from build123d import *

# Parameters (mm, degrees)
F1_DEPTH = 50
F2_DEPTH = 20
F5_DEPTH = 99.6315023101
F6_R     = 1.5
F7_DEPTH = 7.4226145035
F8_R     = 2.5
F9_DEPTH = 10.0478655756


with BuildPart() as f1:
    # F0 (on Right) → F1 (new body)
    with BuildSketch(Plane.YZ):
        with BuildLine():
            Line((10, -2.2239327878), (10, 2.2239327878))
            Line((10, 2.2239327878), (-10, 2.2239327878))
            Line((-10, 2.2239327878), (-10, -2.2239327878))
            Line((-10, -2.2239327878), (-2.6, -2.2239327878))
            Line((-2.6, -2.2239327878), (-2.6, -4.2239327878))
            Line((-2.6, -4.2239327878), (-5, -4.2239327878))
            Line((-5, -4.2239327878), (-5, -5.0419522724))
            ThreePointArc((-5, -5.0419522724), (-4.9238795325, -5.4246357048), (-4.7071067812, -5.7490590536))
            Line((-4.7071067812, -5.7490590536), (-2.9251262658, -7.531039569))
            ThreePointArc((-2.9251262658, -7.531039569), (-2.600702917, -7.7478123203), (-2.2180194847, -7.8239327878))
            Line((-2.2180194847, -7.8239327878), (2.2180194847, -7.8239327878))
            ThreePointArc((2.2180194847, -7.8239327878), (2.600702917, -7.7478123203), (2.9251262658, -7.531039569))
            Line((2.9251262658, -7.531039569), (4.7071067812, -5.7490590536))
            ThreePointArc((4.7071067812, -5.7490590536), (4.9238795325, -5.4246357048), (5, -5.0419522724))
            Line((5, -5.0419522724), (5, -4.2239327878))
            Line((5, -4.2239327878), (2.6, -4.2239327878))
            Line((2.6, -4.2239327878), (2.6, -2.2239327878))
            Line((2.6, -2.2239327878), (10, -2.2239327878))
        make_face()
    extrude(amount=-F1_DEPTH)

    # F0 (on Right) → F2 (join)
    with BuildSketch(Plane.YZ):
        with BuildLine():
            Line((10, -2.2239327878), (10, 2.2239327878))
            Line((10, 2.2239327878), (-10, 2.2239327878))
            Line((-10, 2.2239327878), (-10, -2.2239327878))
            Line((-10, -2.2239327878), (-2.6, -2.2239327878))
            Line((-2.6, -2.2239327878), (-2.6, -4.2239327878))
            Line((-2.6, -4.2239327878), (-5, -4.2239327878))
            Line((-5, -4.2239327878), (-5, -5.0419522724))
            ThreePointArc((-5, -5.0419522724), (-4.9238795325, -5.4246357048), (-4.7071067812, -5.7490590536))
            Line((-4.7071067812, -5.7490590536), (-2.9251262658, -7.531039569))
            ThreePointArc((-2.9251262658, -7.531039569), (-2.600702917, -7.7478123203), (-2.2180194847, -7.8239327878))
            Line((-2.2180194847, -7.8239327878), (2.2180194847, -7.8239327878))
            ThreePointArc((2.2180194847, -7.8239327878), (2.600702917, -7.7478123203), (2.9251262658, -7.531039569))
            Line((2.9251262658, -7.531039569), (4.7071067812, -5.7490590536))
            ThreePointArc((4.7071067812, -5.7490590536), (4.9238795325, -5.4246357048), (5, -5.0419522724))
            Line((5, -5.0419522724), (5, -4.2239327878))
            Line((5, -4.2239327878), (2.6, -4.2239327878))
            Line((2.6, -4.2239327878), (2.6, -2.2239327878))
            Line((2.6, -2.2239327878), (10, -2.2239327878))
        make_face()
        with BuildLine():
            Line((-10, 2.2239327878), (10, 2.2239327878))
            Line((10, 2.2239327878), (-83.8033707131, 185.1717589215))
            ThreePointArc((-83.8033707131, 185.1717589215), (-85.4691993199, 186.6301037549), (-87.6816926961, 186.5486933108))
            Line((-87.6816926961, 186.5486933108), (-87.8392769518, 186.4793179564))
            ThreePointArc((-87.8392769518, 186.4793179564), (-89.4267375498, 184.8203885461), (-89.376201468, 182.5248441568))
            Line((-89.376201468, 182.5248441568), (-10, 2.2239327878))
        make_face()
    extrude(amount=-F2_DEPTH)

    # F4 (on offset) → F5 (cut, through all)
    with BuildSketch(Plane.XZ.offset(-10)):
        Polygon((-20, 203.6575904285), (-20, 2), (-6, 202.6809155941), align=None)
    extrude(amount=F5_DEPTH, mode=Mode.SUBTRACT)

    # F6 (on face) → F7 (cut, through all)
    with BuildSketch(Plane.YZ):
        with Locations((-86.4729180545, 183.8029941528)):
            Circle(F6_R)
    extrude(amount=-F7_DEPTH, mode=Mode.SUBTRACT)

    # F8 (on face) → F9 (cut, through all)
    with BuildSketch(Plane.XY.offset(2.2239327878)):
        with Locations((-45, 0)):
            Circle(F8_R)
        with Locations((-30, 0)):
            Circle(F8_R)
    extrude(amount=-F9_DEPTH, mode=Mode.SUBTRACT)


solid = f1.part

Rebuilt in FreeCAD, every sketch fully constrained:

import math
import FreeCAD as App
import Part
import Sketcher

V = App.Vector

doc = App.newDocument("Part")
body = doc.addObject("PartDesign::Body", "Body")

# Sketch on YZ plane
sketch1 = body.newObject("Sketcher::SketchObject", "Sketch")
sketch1.AttachmentSupport = (doc.getObject("YZ_Plane"), [""])
sketch1.MapMode = "FlatFace"
sketch1.addGeometry(Part.LineSegment(V(10, -2.223933, 0), V(10, 2.223933, 0)), False)
sketch1.addGeometry(Part.LineSegment(V(10, 2.223933, 0), V(-10, 2.223933, 0)), False)
sketch1.addGeometry(Part.LineSegment(V(-10, 2.223933, 0), V(-10, -2.223933, 0)), False)
sketch1.addGeometry(Part.LineSegment(V(-10, -2.223933, 0), V(-2.6, -2.223933, 0)), False)
sketch1.addGeometry(Part.LineSegment(V(-2.6, -2.223933, 0), V(-2.6, -4.223933, 0)), False)
sketch1.addGeometry(Part.LineSegment(V(-2.6, -4.223933, 0), V(-5, -4.223933, 0)), False)
sketch1.addGeometry(Part.LineSegment(V(-5, -4.223933, 0), V(-5, -5.041952, 0)), False)
sketch1.addGeometry(Part.ArcOfCircle(Part.Circle(V(-4, -5.041952, 0), V(0, 0, 1), 1), math.radians(180), math.radians(225)), False)
sketch1.addGeometry(Part.LineSegment(V(-4.707107, -5.749059, 0), V(-2.925126, -7.53104, 0)), False)
sketch1.addGeometry(Part.ArcOfCircle(Part.Circle(V(-2.218019, -6.823933, 0), V(0, 0, 1), 1), math.radians(-135), math.radians(-90)), False)
sketch1.addGeometry(Part.LineSegment(V(-2.218019, -7.823933, 0), V(2.218019, -7.823933, 0)), False)
sketch1.addGeometry(Part.ArcOfCircle(Part.Circle(V(2.218019, -6.823933, 0), V(0, 0, 1), 1), math.radians(-90), math.radians(-45)), False)
sketch1.addGeometry(Part.LineSegment(V(2.925126, -7.53104, 0), V(4.707107, -5.749059, 0)), False)
sketch1.addGeometry(Part.ArcOfCircle(Part.Circle(V(4, -5.041952, 0), V(0, 0, 1), 1), math.radians(-45), math.radians(0)), False)
sketch1.addGeometry(Part.LineSegment(V(5, -5.041952, 0), V(5, -4.223933, 0)), False)
sketch1.addGeometry(Part.LineSegment(V(5, -4.223933, 0), V(2.6, -4.223933, 0)), False)
sketch1.addGeometry(Part.LineSegment(V(2.6, -4.223933, 0), V(2.6, -2.223933, 0)), False)
sketch1.addGeometry(Part.LineSegment(V(2.6, -2.223933, 0), V(10, -2.223933, 0)), False)
sketch1.addConstraint(Sketcher.Constraint("Coincident", 0, 2, 1, 1))
sketch1.addConstraint(Sketcher.Constraint("Coincident", 1, 2, 2, 1))
sketch1.addConstraint(Sketcher.Constraint("Coincident", 2, 2, 3, 1))
sketch1.addConstraint(Sketcher.Constraint("Coincident", 3, 2, 4, 1))
sketch1.addConstraint(Sketcher.Constraint("Coincident", 4, 2, 5, 1))
sketch1.addConstraint(Sketcher.Constraint("Coincident", 5, 2, 6, 1))
sketch1.addConstraint(Sketcher.Constraint("Tangent", 6, 2, 7, 1))
sketch1.addConstraint(Sketcher.Constraint("Tangent", 7, 2, 8, 1))
sketch1.addConstraint(Sketcher.Constraint("Tangent", 8, 2, 9, 1))
sketch1.addConstraint(Sketcher.Constraint("Tangent", 9, 2, 10, 1))
sketch1.addConstraint(Sketcher.Constraint("Tangent", 10, 2, 11, 1))
sketch1.addConstraint(Sketcher.Constraint("Tangent", 11, 2, 12, 1))
sketch1.addConstraint(Sketcher.Constraint("Tangent", 12, 2, 13, 1))
sketch1.addConstraint(Sketcher.Constraint("Tangent", 13, 2, 14, 1))
sketch1.addConstraint(Sketcher.Constraint("Coincident", 14, 2, 15, 1))
sketch1.addConstraint(Sketcher.Constraint("Coincident", 15, 2, 16, 1))
sketch1.addConstraint(Sketcher.Constraint("Coincident", 16, 2, 17, 1))
sketch1.addConstraint(Sketcher.Constraint("Coincident", 17, 2, 0, 1))
sketch1.addConstraint(Sketcher.Constraint("Vertical", 0))
sketch1.addConstraint(Sketcher.Constraint("Horizontal", 1))
sketch1.addConstraint(Sketcher.Constraint("Vertical", 2))
sketch1.addConstraint(Sketcher.Constraint("Horizontal", 3))
sketch1.addConstraint(Sketcher.Constraint("Vertical", 4))
sketch1.addConstraint(Sketcher.Constraint("Horizontal", 5))
sketch1.addConstraint(Sketcher.Constraint("Vertical", 6))
sketch1.addConstraint(Sketcher.Constraint("Horizontal", 10))
sketch1.addConstraint(Sketcher.Constraint("Vertical", 14))
sketch1.addConstraint(Sketcher.Constraint("Horizontal", 15))
sketch1.addConstraint(Sketcher.Constraint("Vertical", 16))
sketch1.addConstraint(Sketcher.Constraint("Horizontal", 17))
sketch1.addConstraint(Sketcher.Constraint("Equal", 7, 9))
sketch1.addConstraint(Sketcher.Constraint("Equal", 9, 11))
sketch1.addConstraint(Sketcher.Constraint("Equal", 11, 13))
sketch1.addConstraint(Sketcher.Constraint("Symmetric", 0, 2, 2, 2, -1, 1))
sketch1.addConstraint(Sketcher.Constraint("Symmetric", 7, 3, 13, 3, -2))
sketch1.addConstraint(Sketcher.Constraint("Symmetric", 4, 2, 15, 2, -2))
sketch1.addConstraint(Sketcher.Constraint("Perpendicular", 8, 12))
sketch1.addConstraint(Sketcher.Constraint("Horizontal", 8, 2, 11, 2))
sketch1.addConstraint(Sketcher.Constraint("Horizontal", 3, 2, 16, 2))
sketch1.addConstraint(Sketcher.Constraint("Radius", 7, 1.0))
sketch1.addConstraint(Sketcher.Constraint("DistanceX", 1, 2, 1, 1, 20.0))
sketch1.addConstraint(Sketcher.Constraint("DistanceY", 4, 2, 4, 1, 2.0))
sketch1.addConstraint(Sketcher.Constraint("DistanceX", 3, 1, 3, 2, 7.4))
sketch1.addConstraint(Sketcher.Constraint("DistanceX", 5, 2, 5, 1, 2.4))
sketch1.addConstraint(Sketcher.Constraint("DistanceY", 9, 3, 2, 2, 4.6))
sketch1.addConstraint(Sketcher.Constraint("Distance", 8, 2.520101))
sketch1.addConstraint(Sketcher.Constraint("DistanceY", 0, 1, 0, 2, 4.447866))
pad1 = body.newObject("PartDesign::Pad", "Pad")
pad1.Profile = sketch1
pad1.Length = 50
pad1.Reversed = True

# Sketch on YZ plane
sketch2 = body.newObject("Sketcher::SketchObject", "Sketch001")
sketch2.AttachmentSupport = (doc.getObject("YZ_Plane"), [""])
sketch2.MapMode = "FlatFace"
sketch2.addGeometry(Part.LineSegment(V(10, -2.223933, 0), V(10, 2.223933, 0)), False)
sketch2.addGeometry(Part.LineSegment(V(10, 2.223933, 0), V(-83.803371, 185.171759, 0)), False)
sketch2.addGeometry(Part.ArcOfCircle(Part.Circle(V(-86.472918, 183.802994, 0), V(0, 0, 1), 3), math.radians(27.145707), math.radians(113.761155)), False)
sketch2.addGeometry(Part.LineSegment(V(-87.681693, 186.548693, 0), V(-87.839277, 186.479318, 0)), False)
sketch2.addGeometry(Part.ArcOfCircle(Part.Circle(V(-86.630502, 183.733619, 0), V(0, 0, 1), 3), math.radians(113.761155), math.radians(203.761155)), False)
sketch2.addGeometry(Part.LineSegment(V(-89.376201, 182.524844, 0), V(-10, 2.223933, 0)), False)
sketch2.addGeometry(Part.LineSegment(V(-10, 2.223933, 0), V(-10, -2.223933, 0)), False)
sketch2.addGeometry(Part.LineSegment(V(-10, -2.223933, 0), V(-2.6, -2.223933, 0)), False)
sketch2.addGeometry(Part.LineSegment(V(-2.6, -2.223933, 0), V(-2.6, -4.223933, 0)), False)
sketch2.addGeometry(Part.LineSegment(V(-2.6, -4.223933, 0), V(-5, -4.223933, 0)), False)
sketch2.addGeometry(Part.LineSegment(V(-5, -4.223933, 0), V(-5, -5.041952, 0)), False)
sketch2.addGeometry(Part.ArcOfCircle(Part.Circle(V(-4, -5.041952, 0), V(0, 0, 1), 1), math.radians(180), math.radians(225)), False)
sketch2.addGeometry(Part.LineSegment(V(-4.707107, -5.749059, 0), V(-2.925126, -7.53104, 0)), False)
sketch2.addGeometry(Part.ArcOfCircle(Part.Circle(V(-2.218019, -6.823933, 0), V(0, 0, 1), 1), math.radians(-135), math.radians(-90)), False)
sketch2.addGeometry(Part.LineSegment(V(-2.218019, -7.823933, 0), V(2.218019, -7.823933, 0)), False)
sketch2.addGeometry(Part.ArcOfCircle(Part.Circle(V(2.218019, -6.823933, 0), V(0, 0, 1), 1), math.radians(-90), math.radians(-45)), False)
sketch2.addGeometry(Part.LineSegment(V(2.925126, -7.53104, 0), V(4.707107, -5.749059, 0)), False)
sketch2.addGeometry(Part.ArcOfCircle(Part.Circle(V(4, -5.041952, 0), V(0, 0, 1), 1), math.radians(-45), math.radians(0)), False)
sketch2.addGeometry(Part.LineSegment(V(5, -5.041952, 0), V(5, -4.223933, 0)), False)
sketch2.addGeometry(Part.LineSegment(V(5, -4.223933, 0), V(2.6, -4.223933, 0)), False)
sketch2.addGeometry(Part.LineSegment(V(2.6, -4.223933, 0), V(2.6, -2.223933, 0)), False)
sketch2.addGeometry(Part.LineSegment(V(2.6, -2.223933, 0), V(10, -2.223933, 0)), False)
sketch2.addConstraint(Sketcher.Constraint("Coincident", 0, 2, 1, 1))
sketch2.addConstraint(Sketcher.Constraint("Tangent", 1, 2, 2, 1))
sketch2.addConstraint(Sketcher.Constraint("Tangent", 2, 2, 3, 1))
sketch2.addConstraint(Sketcher.Constraint("Tangent", 3, 2, 4, 1))
sketch2.addConstraint(Sketcher.Constraint("Tangent", 4, 2, 5, 1))
sketch2.addConstraint(Sketcher.Constraint("Coincident", 5, 2, 6, 1))
sketch2.addConstraint(Sketcher.Constraint("Coincident", 6, 2, 7, 1))
sketch2.addConstraint(Sketcher.Constraint("Coincident", 7, 2, 8, 1))
sketch2.addConstraint(Sketcher.Constraint("Coincident", 8, 2, 9, 1))
sketch2.addConstraint(Sketcher.Constraint("Coincident", 9, 2, 10, 1))
sketch2.addConstraint(Sketcher.Constraint("Tangent", 10, 2, 11, 1))
sketch2.addConstraint(Sketcher.Constraint("Tangent", 11, 2, 12, 1))
sketch2.addConstraint(Sketcher.Constraint("Tangent", 12, 2, 13, 1))
sketch2.addConstraint(Sketcher.Constraint("Tangent", 13, 2, 14, 1))
sketch2.addConstraint(Sketcher.Constraint("Tangent", 14, 2, 15, 1))
sketch2.addConstraint(Sketcher.Constraint("Tangent", 15, 2, 16, 1))
sketch2.addConstraint(Sketcher.Constraint("Tangent", 16, 2, 17, 1))
sketch2.addConstraint(Sketcher.Constraint("Tangent", 17, 2, 18, 1))
sketch2.addConstraint(Sketcher.Constraint("Coincident", 18, 2, 19, 1))
sketch2.addConstraint(Sketcher.Constraint("Coincident", 19, 2, 20, 1))
sketch2.addConstraint(Sketcher.Constraint("Coincident", 20, 2, 21, 1))
sketch2.addConstraint(Sketcher.Constraint("Coincident", 21, 2, 0, 1))
sketch2.addConstraint(Sketcher.Constraint("Vertical", 0))
sketch2.addConstraint(Sketcher.Constraint("Vertical", 6))
sketch2.addConstraint(Sketcher.Constraint("Horizontal", 7))
sketch2.addConstraint(Sketcher.Constraint("Vertical", 8))
sketch2.addConstraint(Sketcher.Constraint("Horizontal", 9))
sketch2.addConstraint(Sketcher.Constraint("Vertical", 10))
sketch2.addConstraint(Sketcher.Constraint("Horizontal", 14))
sketch2.addConstraint(Sketcher.Constraint("Vertical", 18))
sketch2.addConstraint(Sketcher.Constraint("Horizontal", 19))
sketch2.addConstraint(Sketcher.Constraint("Vertical", 20))
sketch2.addConstraint(Sketcher.Constraint("Horizontal", 21))
sketch2.addConstraint(Sketcher.Constraint("Equal", 2, 4))
sketch2.addConstraint(Sketcher.Constraint("Equal", 11, 13))
sketch2.addConstraint(Sketcher.Constraint("Equal", 13, 15))
sketch2.addConstraint(Sketcher.Constraint("Equal", 15, 17))
sketch2.addConstraint(Sketcher.Constraint("Symmetric", 0, 2, 6, 2, -1, 1))
sketch2.addConstraint(Sketcher.Constraint("Symmetric", 11, 3, 17, 3, -2))
sketch2.addConstraint(Sketcher.Constraint("Symmetric", 8, 2, 19, 2, -2))
sketch2.addConstraint(Sketcher.Constraint("Perpendicular", 3, 5))
sketch2.addConstraint(Sketcher.Constraint("Perpendicular", 12, 16))
sketch2.addConstraint(Sketcher.Constraint("Horizontal", 0, 2, 5, 2))
sketch2.addConstraint(Sketcher.Constraint("Horizontal", 12, 2, 15, 2))
sketch2.addConstraint(Sketcher.Constraint("Horizontal", 7, 2, 20, 2))
sketch2.addConstraint(Sketcher.Constraint("Radius", 2, 3.0))
sketch2.addConstraint(Sketcher.Constraint("Radius", 11, 1.0))
sketch2.addConstraint(Sketcher.Constraint("DistanceY", 8, 2, 8, 1, 2.0))
sketch2.addConstraint(Sketcher.Constraint("Distance", 5, 197.0))
sketch2.addConstraint(Sketcher.Constraint("DistanceX", 7, 1, 7, 2, 7.4))
sketch2.addConstraint(Sketcher.Constraint("DistanceX", 9, 2, 9, 1, 2.4))
sketch2.addConstraint(Sketcher.Constraint("DistanceX", 11, 3, -1, 1, 4.0))
sketch2.addConstraint(Sketcher.Constraint("DistanceY", 13, 3, 6, 2, 4.6))
sketch2.addConstraint(Sketcher.Constraint("Distance", 12, 2.520101))
sketch2.addConstraint(Sketcher.Constraint("DistanceX", 4, 2, -1, 1, 89.376201))
sketch2.addConstraint(Sketcher.Constraint("DistanceX", 2, 3, 13, 3, 84.254899))
sketch2.addConstraint(Sketcher.Constraint("DistanceY", 0, 1, 0, 2, 4.447866))
pad2 = body.newObject("PartDesign::Pad", "Pad001")
pad2.Profile = sketch2
pad2.Length = 20
pad2.Reversed = True

# Sketch on XZ plane
sketch3 = body.newObject("Sketcher::SketchObject", "Sketch002")
sketch3.AttachmentSupport = (doc.getObject("XZ_Plane"), [""])
sketch3.MapMode = "FlatFace"
sketch3.AttachmentOffset = App.Placement(V(0, 0, -10), App.Rotation())
sketch3.addGeometry(Part.LineSegment(V(-20, 203.65759, 0), V(-20, 2, 0)), False)
sketch3.addGeometry(Part.LineSegment(V(-20, 2, 0), V(-6, 202.680916, 0)), False)
sketch3.addGeometry(Part.LineSegment(V(-6, 202.680916, 0), V(-20, 203.65759, 0)), False)
sketch3.addConstraint(Sketcher.Constraint("Coincident", 0, 2, 1, 1))
sketch3.addConstraint(Sketcher.Constraint("Coincident", 1, 2, 2, 1))
sketch3.addConstraint(Sketcher.Constraint("Coincident", 2, 2, 0, 1))
sketch3.addConstraint(Sketcher.Constraint("Vertical", 0))
sketch3.addConstraint(Sketcher.Constraint("Perpendicular", 1, 2))
sketch3.addConstraint(Sketcher.Constraint("DistanceX", 0, 2, -1, 1, 20.0))
sketch3.addConstraint(Sketcher.Constraint("DistanceY", -1, 1, 0, 2, 2.0))
sketch3.addConstraint(Sketcher.Constraint("DistanceX", 1, 2, -1, 1, 6.0))
sketch3.addConstraint(Sketcher.Constraint("DistanceY", 0, 2, 0, 1, 201.65759))
pocket1 = body.newObject("PartDesign::Pocket", "Pocket")
pocket1.Profile = sketch3
pocket1.Type = "ThroughAll"
pocket1.Reversed = True

# Sketch on YZ plane
sketch4 = body.newObject("Sketcher::SketchObject", "Sketch003")
sketch4.AttachmentSupport = (doc.getObject("YZ_Plane"), [""])
sketch4.MapMode = "FlatFace"
sketch4.addGeometry(Part.Circle(V(-86.472918, 183.802994, 0), V(0, 0, 1), 1.5), False)
sketch4.addConstraint(Sketcher.Constraint("Diameter", 0, 3.0))
sketch4.addConstraint(Sketcher.Constraint("DistanceX", 0, 3, -1, 1, 86.472918))
sketch4.addConstraint(Sketcher.Constraint("DistanceY", -1, 1, 0, 3, 183.802994))
pocket2 = body.newObject("PartDesign::Pocket", "Pocket001")
pocket2.Profile = sketch4
pocket2.Type = "ThroughAll"

# Sketch on XY plane
sketch5 = body.newObject("Sketcher::SketchObject", "Sketch004")
sketch5.AttachmentSupport = (doc.getObject("XY_Plane"), [""])
sketch5.MapMode = "FlatFace"
sketch5.AttachmentOffset = App.Placement(V(0, 0, 2.223933), App.Rotation())
sketch5.addGeometry(Part.Circle(V(-45, 0, 0), V(0, 0, 1), 2.5), False)
sketch5.addGeometry(Part.Circle(V(-30, 0, 0), V(0, 0, 1), 2.5), False)
sketch5.addConstraint(Sketcher.Constraint("Equal", 0, 1))
sketch5.addConstraint(Sketcher.Constraint("PointOnObject", 0, 3, -1))
sketch5.addConstraint(Sketcher.Constraint("PointOnObject", 1, 3, -1))
sketch5.addConstraint(Sketcher.Constraint("Diameter", 0, 5.0))
sketch5.addConstraint(Sketcher.Constraint("DistanceX", 0, 3, -1, 1, 45.0))
sketch5.addConstraint(Sketcher.Constraint("DistanceX", 1, 3, -1, 1, 30.0))
pocket3 = body.newObject("PartDesign::Pocket", "Pocket002")
pocket3.Profile = sketch5
pocket3.Type = "ThroughAll"

doc.recompute()
